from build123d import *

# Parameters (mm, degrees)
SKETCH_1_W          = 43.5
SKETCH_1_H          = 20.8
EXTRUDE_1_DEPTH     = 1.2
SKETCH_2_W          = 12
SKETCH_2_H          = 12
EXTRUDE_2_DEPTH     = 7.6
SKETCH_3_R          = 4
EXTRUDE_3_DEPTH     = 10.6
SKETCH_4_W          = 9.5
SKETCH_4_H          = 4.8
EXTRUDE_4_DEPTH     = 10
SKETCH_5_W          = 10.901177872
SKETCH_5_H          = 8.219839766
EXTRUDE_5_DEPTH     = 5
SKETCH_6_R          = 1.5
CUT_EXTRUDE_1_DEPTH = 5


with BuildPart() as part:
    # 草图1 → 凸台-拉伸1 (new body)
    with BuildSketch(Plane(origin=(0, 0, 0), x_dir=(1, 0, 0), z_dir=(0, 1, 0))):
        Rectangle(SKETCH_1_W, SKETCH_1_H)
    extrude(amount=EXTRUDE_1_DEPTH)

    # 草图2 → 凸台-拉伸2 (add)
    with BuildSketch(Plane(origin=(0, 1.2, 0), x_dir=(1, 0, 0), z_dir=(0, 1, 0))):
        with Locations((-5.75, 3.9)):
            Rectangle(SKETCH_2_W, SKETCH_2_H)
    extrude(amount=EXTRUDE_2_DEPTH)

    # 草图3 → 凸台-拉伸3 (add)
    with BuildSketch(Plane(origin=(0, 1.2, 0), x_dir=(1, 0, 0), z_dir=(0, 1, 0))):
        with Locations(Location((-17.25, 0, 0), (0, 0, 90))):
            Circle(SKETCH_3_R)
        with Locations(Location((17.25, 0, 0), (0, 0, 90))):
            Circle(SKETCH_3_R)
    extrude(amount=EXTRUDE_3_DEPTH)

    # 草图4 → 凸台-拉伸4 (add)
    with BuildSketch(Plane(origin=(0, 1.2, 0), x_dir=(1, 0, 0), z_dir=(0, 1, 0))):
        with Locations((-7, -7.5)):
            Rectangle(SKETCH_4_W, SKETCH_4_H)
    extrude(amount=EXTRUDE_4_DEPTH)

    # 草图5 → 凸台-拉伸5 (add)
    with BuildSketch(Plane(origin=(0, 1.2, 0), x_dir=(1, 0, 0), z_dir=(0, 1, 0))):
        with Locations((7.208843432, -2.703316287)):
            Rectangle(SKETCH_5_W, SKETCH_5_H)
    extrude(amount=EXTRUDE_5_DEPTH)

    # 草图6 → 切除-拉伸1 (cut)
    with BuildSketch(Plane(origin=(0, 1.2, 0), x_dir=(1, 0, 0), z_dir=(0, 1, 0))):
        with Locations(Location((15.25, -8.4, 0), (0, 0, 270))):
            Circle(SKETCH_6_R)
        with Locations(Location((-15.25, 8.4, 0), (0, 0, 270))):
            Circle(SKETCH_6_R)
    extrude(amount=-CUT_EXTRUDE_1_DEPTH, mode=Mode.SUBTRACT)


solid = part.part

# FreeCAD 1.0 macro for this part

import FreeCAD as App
import Part
import Sketcher
from FreeCAD import Vector

doc = App.newDocument("Part")
body = doc.addObject("PartDesign::Body", "Body")

# Sketch on XZ plane
sketch1 = body.newObject("Sketcher::SketchObject", "Sketch")
sketch1.AttachmentSupport = (doc.getObject("XZ_Plane"), [""])
sketch1.MapMode = "FlatFace"
sketch1.addGeometry([
    Part.LineSegment(Vector(-21.75, -10.4, 0), Vector(-21.75, 10.4, 0)),
    Part.LineSegment(Vector(-21.75, 10.4, 0), Vector(21.75, 10.4, 0)),
    Part.LineSegment(Vector(21.75, 10.4, 0), Vector(21.75, -10.4, 0)),
    Part.LineSegment(Vector(21.75, -10.4, 0), Vector(-21.75, -10.4, 0)),
], False)
sketch1.addConstraint([
    Sketcher.Constraint("Coincident", 0, 2, 1, 1),
    Sketcher.Constraint("Coincident", 1, 2, 2, 1),
    Sketcher.Constraint("Coincident", 2, 2, 3, 1),
    Sketcher.Constraint("Coincident", 3, 2, 0, 1),
    Sketcher.Constraint("Vertical", 0),
    Sketcher.Constraint("Horizontal", 1),
    Sketcher.Constraint("Vertical", 2),
    Sketcher.Constraint("Horizontal", 3),
    Sketcher.Constraint("Symmetric", 0, 2, 2, 2, -1, 1),
    Sketcher.Constraint("DistanceX", 1, 1, 1, 2, 43.5),
    Sketcher.Constraint("DistanceY", 0, 1, 0, 2, 20.8),
])
pad1 = body.newObject("PartDesign::Pad", "Pad")
pad1.Profile = sketch1
pad1.Length = 1.2
pad1.Reversed = True

# Sketch on XZ plane
sketch2 = body.newObject("Sketcher::SketchObject", "Sketch001")
sketch2.AttachmentSupport = (doc.getObject("XZ_Plane"), [""])
sketch2.MapMode = "FlatFace"
sketch2.AttachmentOffset = App.Placement(Vector(0, 0, -1.2), App.Rotation())
sketch2.addGeometry([
    Part.LineSegment(Vector(-11.75, -9.9, 0), Vector(-11.75, 2.1, 0)),
    Part.LineSegment(Vector(-11.75, 2.1, 0), Vector(0.25, 2.1, 0)),
    Part.LineSegment(Vector(0.25, 2.1, 0), Vector(0.25, -9.9, 0)),
    Part.LineSegment(Vector(0.25, -9.9, 0), Vector(-11.75, -9.9, 0)),
], False)
sketch2.addConstraint([
    Sketcher.Constraint("Coincident", 0, 2, 1, 1),
    Sketcher.Constraint("Coincident", 1, 2, 2, 1),
    Sketcher.Constraint("Coincident", 2, 2, 3, 1),
    Sketcher.Constraint("Coincident", 3, 2, 0, 1),
    Sketcher.Constraint("Vertical", 0),
    Sketcher.Constraint("Horizontal", 1),
    Sketcher.Constraint("Vertical", 2),
    Sketcher.Constraint("Horizontal", 3),
    Sketcher.Constraint("Equal", 3, 0),
    Sketcher.Constraint("DistanceX", 1, 1, 1, 2, 12.0),
    Sketcher.Constraint("DistanceY", -1, 1, 0, 2, 2.1),
    Sketcher.Constraint("DistanceX", 0, 2, -1, 1, 11.75),
])
pad2 = body.newObject("PartDesign::Pad", "Pad001")
pad2.Profile = sketch2
pad2.Length = 7.6
pad2.Reversed = True

# Sketch on XZ plane
sketch3 = body.newObject("Sketcher::SketchObject", "Sketch002")
sketch3.AttachmentSupport = (doc.getObject("XZ_Plane"), [""])
sketch3.MapMode = "FlatFace"
sketch3.AttachmentOffset = App.Placement(Vector(0, 0, -1.2), App.Rotation())
sketch3.addGeometry([
    Part.Circle(Vector(-17.25, 0, 0), Vector(0, 0, 1), 4),
    Part.Circle(Vector(17.25, 0, 0), Vector(0, 0, 1), 4),
], False)
sketch3.addConstraint([
    Sketcher.Constraint("Equal", 0, 1),
    Sketcher.Constraint("Symmetric", 0, 3, 1, 3, -1, 1),
    Sketcher.Constraint("PointOnObject", 0, 3, -1),
    Sketcher.Constraint("Diameter", 0, 8.0),
    Sketcher.Constraint("DistanceX", 0, 3, 1, 3, 34.5),
])
pad3 = body.newObject("PartDesign::Pad", "Pad002")
pad3.Profile = sketch3
pad3.Length = 10.6
pad3.Reversed = True

# Sketch on XZ plane
sketch4 = body.newObject("Sketcher::SketchObject", "Sketch003")
sketch4.AttachmentSupport = (doc.getObject("XZ_Plane"), [""])
sketch4.MapMode = "FlatFace"
sketch4.AttachmentOffset = App.Placement(Vector(0, 0, -1.2), App.Rotation())
sketch4.addGeometry([
    Part.LineSegment(Vector(-11.75, 5.1, 0), Vector(-11.75, 9.9, 0)),
    Part.LineSegment(Vector(-11.75, 9.9, 0), Vector(-2.25, 9.9, 0)),
    Part.LineSegment(Vector(-2.25, 9.9, 0), Vector(-2.25, 5.1, 0)),
    Part.LineSegment(Vector(-2.25, 5.1, 0), Vector(-11.75, 5.1, 0)),
], False)
sketch4.addConstraint([
    Sketcher.Constraint("Coincident", 0, 2, 1, 1),
    Sketcher.Constraint("Coincident", 1, 2, 2, 1),
    Sketcher.Constraint("Coincident", 2, 2, 3, 1),
    Sketcher.Constraint("Coincident", 3, 2, 0, 1),
    Sketcher.Constraint("Vertical", 0),
    Sketcher.Constraint("Horizontal", 1),
    Sketcher.Constraint("Vertical", 2),
    Sketcher.Constraint("Horizontal", 3),
    Sketcher.Constraint("DistanceX", 1, 1, 1, 2, 9.5),
    Sketcher.Constraint("DistanceY", 0, 1, 0, 2, 4.8),
    Sketcher.Constraint("DistanceY", -1, 1, 0, 2, 9.9),
    Sketcher.Constraint("DistanceX", 0, 2, -1, 1, 11.75),
])
pad4 = body.newObject("PartDesign::Pad", "Pad003")
pad4.Profile = sketch4
pad4.Length = 10
pad4.Reversed = True

# Sketch on XZ plane
sketch5 = body.newObject("Sketcher::SketchObject", "Sketch004")
sketch5.AttachmentSupport = (doc.getObject("XZ_Plane"), [""])
sketch5.MapMode = "FlatFace"
sketch5.AttachmentOffset = App.Placement(Vector(0, 0, -1.2), App.Rotation())
sketch5.addGeometry([
    Part.LineSegment(Vector(1.758254, -1.406604, 0), Vector(1.758254, 6.813236, 0)),
    Part.LineSegment(Vector(1.758254, 6.813236, 0), Vector(12.659432, 6.813236, 0)),
    Part.LineSegment(Vector(12.659432, 6.813236, 0), Vector(12.659432, -1.406604, 0)),
    Part.LineSegment(Vector(12.659432, -1.406604, 0), Vector(1.758254, -1.406604, 0)),
], False)
sketch5.addConstraint([
    Sketcher.Constraint("Coincident", 0, 2, 1, 1),
    Sketcher.Constraint("Coincident", 1, 2, 2, 1),
    Sketcher.Constraint("Coincident", 2, 2, 3, 1),
    Sketcher.Constraint("Coincident", 3, 2, 0, 1),
    Sketcher.Constraint("Vertical", 0),
    Sketcher.Constraint("Horizontal", 1),
    Sketcher.Constraint("Vertical", 2),
    Sketcher.Constraint("Horizontal", 3),
    Sketcher.Constraint("DistanceY", 0, 1, 0, 2, 8.21984),
    Sketcher.Constraint("DistanceX", 1, 1, 1, 2, 10.901178),
    Sketcher.Constraint("DistanceX", -1, 1, 0, 2, 1.758254),
    Sketcher.Constraint("DistanceY", -1, 1, 0, 2, 6.813236),
])
pad5 = body.newObject("PartDesign::Pad", "Pad004")
pad5.Profile = sketch5
pad5.Length = 5
pad5.Reversed = True

# Sketch on XZ plane
sketch6 = body.newObject("Sketcher::SketchObject", "Sketch005")
sketch6.AttachmentSupport = (doc.getObject("XZ_Plane"), [""])
sketch6.MapMode = "FlatFace"
sketch6.AttachmentOffset = App.Placement(Vector(0, 0, -1.2), App.Rotation())
sketch6.addGeometry([
    Part.Circle(Vector(15.25, 8.4, 0), Vector(0, 0, 1), 1.5),
    Part.Circle(Vector(-15.25, -8.4, 0), Vector(0, 0, 1), 1.5),
], False)
sketch6.addConstraint([
    Sketcher.Constraint("Equal", 0, 1),
    Sketcher.Constraint("Symmetric", 0, 3, 1, 3, -1, 1),
    Sketcher.Constraint("Diameter", 0, 3.0),
    Sketcher.Constraint("DistanceY", -1, 1, 0, 3, 8.4),
    Sketcher.Constraint("DistanceX", 1, 3, 0, 3, 30.5),
])
pocket1 = body.newObject("PartDesign::Pocket", "Pocket")
pocket1.Profile = sketch6
pocket1.Length = 5
pocket1.Reversed = True

doc.recompute()
